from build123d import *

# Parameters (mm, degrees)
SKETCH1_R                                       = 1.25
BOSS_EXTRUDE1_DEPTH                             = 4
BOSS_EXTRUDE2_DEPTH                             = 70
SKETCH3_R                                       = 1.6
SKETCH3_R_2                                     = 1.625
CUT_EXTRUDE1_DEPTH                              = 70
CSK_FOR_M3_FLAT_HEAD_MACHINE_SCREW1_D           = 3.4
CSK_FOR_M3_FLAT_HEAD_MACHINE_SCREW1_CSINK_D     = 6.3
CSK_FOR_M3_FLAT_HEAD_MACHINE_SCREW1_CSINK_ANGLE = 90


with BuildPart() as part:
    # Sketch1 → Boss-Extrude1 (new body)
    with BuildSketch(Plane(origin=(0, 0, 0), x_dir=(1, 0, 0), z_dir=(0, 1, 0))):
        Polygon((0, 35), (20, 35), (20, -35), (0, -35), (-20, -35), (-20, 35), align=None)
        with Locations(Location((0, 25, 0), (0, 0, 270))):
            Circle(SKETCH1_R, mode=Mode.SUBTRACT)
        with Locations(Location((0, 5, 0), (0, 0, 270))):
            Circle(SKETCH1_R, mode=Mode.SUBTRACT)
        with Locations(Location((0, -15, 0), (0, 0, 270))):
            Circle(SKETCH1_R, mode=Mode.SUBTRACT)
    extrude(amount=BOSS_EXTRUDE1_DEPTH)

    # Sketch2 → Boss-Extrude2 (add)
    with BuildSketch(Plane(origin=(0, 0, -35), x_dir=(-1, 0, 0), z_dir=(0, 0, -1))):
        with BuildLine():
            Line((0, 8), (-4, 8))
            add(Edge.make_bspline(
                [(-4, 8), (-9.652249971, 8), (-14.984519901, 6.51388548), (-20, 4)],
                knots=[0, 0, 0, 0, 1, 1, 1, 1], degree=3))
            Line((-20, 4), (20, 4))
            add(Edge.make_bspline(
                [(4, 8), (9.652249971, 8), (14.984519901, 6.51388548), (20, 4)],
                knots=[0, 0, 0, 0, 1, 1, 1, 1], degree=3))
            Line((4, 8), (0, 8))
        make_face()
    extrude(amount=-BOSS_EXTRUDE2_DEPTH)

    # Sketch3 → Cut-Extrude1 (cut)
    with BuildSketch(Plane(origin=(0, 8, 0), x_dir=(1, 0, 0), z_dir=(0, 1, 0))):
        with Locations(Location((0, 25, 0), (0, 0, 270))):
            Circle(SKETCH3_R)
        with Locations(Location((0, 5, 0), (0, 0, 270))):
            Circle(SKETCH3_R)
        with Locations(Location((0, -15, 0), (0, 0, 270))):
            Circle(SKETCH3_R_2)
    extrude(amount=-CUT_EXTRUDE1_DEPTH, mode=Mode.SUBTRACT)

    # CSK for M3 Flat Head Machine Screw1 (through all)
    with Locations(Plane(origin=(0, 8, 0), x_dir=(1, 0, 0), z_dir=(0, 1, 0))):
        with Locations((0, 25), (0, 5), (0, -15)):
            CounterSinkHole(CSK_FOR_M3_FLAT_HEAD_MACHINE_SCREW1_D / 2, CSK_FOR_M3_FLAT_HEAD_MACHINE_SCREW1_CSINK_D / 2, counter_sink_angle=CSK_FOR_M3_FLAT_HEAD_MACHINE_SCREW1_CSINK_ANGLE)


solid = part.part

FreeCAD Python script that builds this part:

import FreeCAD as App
import Part
import Sketcher

V = App.Vector
Q = App.Units.Quantity

doc = App.newDocument("Part")
params = doc.addObject("Spreadsheet::Sheet", "Params")
for row, (alias, value) in enumerate([
    ("sketch1_diameter", "2.5 mm"),
    ("sketch1_width", "40 mm"),
    ("sketch1_height", "70 mm"),
    ("pad1_length", "4 mm"),
    ("pad2_length", "70 mm"),
    ("sketch3_diameter", "3.2 mm"),
    ("sketch3_diameter2", "3.25 mm"),
    ("pocket1_length", "70 mm"),
    ("sketch4_diameter", "3.4 mm"),
    ("hole_diameter", "3.4 mm"),
    ("hole_csink_diameter", "6.3 mm"),
], start=1):
    params.set(f"A{row}", alias)
    params.set(f"B{row}", "=" + value)
    params.setAlias(f"B{row}", alias)

body = doc.addObject("PartDesign::Body", "Body")

# Sketch on XZ plane
sketch1 = body.newObject("Sketcher::SketchObject", "Sketch")
sketch1.AttachmentSupport = (doc.getObject("XZ_Plane"), [""])
sketch1.MapMode = "FlatFace"
sketch1.addGeometry([
    Part.LineSegment(V(20, -35, 0), V(-20, -35, 0)),  # 0
    Part.LineSegment(V(-20, -35, 0), V(-20, 35, 0)),  # 1
    Part.LineSegment(V(-20, 35, 0), V(20, 35, 0)),  # 2
    Part.LineSegment(V(20, 35, 0), V(20, -35, 0)),  # 3
    Part.Circle(V(0, 15, 0), V(0, 0, 1), 1.2),  # 4
    Part.Circle(V(0, -5, 0), V(0, 0, 1), 1.2),  # 5
    Part.Circle(V(0, -25, 0), V(0, 0, 1), 1.2),  # 6
], False)
sketch1.addConstraint([
    Sketcher.Constraint("Coincident", 0, 2, 1, 1),
    Sketcher.Constraint("Coincident", 1, 2, 2, 1),
    Sketcher.Constraint("Coincident", 2, 2, 3, 1),
    Sketcher.Constraint("Coincident", 3, 2, 0, 1),
    Sketcher.Constraint("Horizontal", 0),
    Sketcher.Constraint("Vertical", 1),
    Sketcher.Constraint("Horizontal", 2),
    Sketcher.Constraint("Vertical", 3),
    Sketcher.Constraint("Equal", 4, 5),
    Sketcher.Constraint("Equal", 5, 6),
    Sketcher.Constraint("Symmetric", 0, 2, 2, 2, -1, 1),
    Sketcher.Constraint("PointOnObject", 4, 3, -2),
    Sketcher.Constraint("PointOnObject", 5, 3, -2),
    Sketcher.Constraint("PointOnObject", 6, 3, -2),
    Sketcher.Constraint("Diameter", 4, Q("2.5 mm")),
    Sketcher.Constraint("DistanceX", 0, 2, 0, 1, Q("40 mm")),
    Sketcher.Constraint("DistanceY", 1, 1, 1, 2, Q("70 mm")),
    Sketcher.Constraint("DistanceY", -1, 1, 4, 3, Q("15 mm")),
    Sketcher.Constraint("DistanceY", 5, 3, -1, 1, Q("5 mm")),
    Sketcher.Constraint("DistanceY", 6, 3, -1, 1, Q("25 mm")),
])
sketch1.setExpression("Constraints[14]", "Params.sketch1_diameter")
sketch1.setExpression("Constraints[15]", "Params.sketch1_width")
sketch1.setExpression("Constraints[16]", "Params.sketch1_height")
pad1 = body.newObject("PartDesign::Pad", "Pad")
pad1.Profile = sketch1
pad1.setExpression("Length", "Params.pad1_length")
pad1.Reversed = True

# Sketch on XY plane
sketch2 = body.newObject("Sketcher::SketchObject", "Sketch001")
sketch2.AttachmentSupport = (doc.getObject("XY_Plane"), [""])
sketch2.MapMode = "FlatFace"
sketch2.AttachmentOffset = App.Placement(V(0, 0, -35), App.Rotation())
sketch2.addGeometry([
    Part.BSplineCurve([V(4, 8, 0), V(9.65225, 8, 0), V(14.98452, 6.513885, 0), V(20, 4, 0)], [4, 4], [0, 1], False, 3, [1, 1, 1, 1], False),
    Part.LineSegment(V(20, 4, 0), V(-20, 4, 0)),
    Part.BSplineCurve([V(-4, 8, 0), V(-9.65225, 8, 0), V(-14.98452, 6.513885, 0), V(-20, 4, 0)], [4, 4], [0, 1], False, 3, [1, 1, 1, 1], False),
    Part.LineSegment(V(-4, 8, 0), V(4, 8, 0)),
], False)
sketch2.addConstraint([
    Sketcher.Constraint("Block", 0),
    Sketcher.Constraint("Block", 2),
    Sketcher.Constraint("Coincident", 0, 2, 1, 1),
    Sketcher.Constraint("Coincident", 1, 2, 2, 2),
    Sketcher.Constraint("Coincident", 2, 1, 3, 1),
    Sketcher.Constraint("Coincident", 3, 2, 0, 1),
])
pad2 = body.newObject("PartDesign::Pad", "Pad001")
pad2.Profile = sketch2
pad2.setExpression("Length", "Params.pad2_length")

# Sketch on XZ plane
sketch3 = body.newObject("Sketcher::SketchObject", "Sketch002")
sketch3.AttachmentSupport = (doc.getObject("XZ_Plane"), [""])
sketch3.MapMode = "FlatFace"
sketch3.AttachmentOffset = App.Placement(V(0, 0, -8), App.Rotation())
sketch3.addGeometry([
    Part.Circle(V(0, -25, 0), V(0, 0, 1), 1.6),
    Part.Circle(V(0, -5, 0), V(0, 0, 1), 1.6),
    Part.Circle(V(0, 15, 0), V(0, 0, 1), 1.6),
], False)
sketch3.addConstraint([
    Sketcher.Constraint("Equal", 0, 1),
    Sketcher.Constraint("PointOnObject", 0, 3, -2),
    Sketcher.Constraint("PointOnObject", 1, 3, -2),
    Sketcher.Constraint("PointOnObject", 2, 3, -2),
    Sketcher.Constraint("Diameter", 0, Q("3.2 mm")),
    Sketcher.Constraint("Diameter", 2, Q("3.25 mm")),
    Sketcher.Constraint("DistanceY", 0, 3, -1, 1, Q("25 mm")),
    Sketcher.Constraint("DistanceY", 1, 3, -1, 1, Q("5 mm")),
    Sketcher.Constraint("DistanceY", -1, 1, 2, 3, Q("15 mm")),
])
sketch3.setExpression("Constraints[4]", "Params.sketch3_diameter")
sketch3.setExpression("Constraints[5]", "Params.sketch3_diameter2")
pocket1 = body.newObject("PartDesign::Pocket", "Pocket")
pocket1.Profile = sketch3
pocket1.setExpression("Length", "Params.pocket1_length")
pocket1.Reversed = True

# Sketch on XZ plane
sketch4 = body.newObject("Sketcher::SketchObject", "Sketch003")
sketch4.AttachmentSupport = (doc.getObject("XZ_Plane"), [""])
sketch4.MapMode = "FlatFace"
sketch4.AttachmentOffset = App.Placement(V(0, 0, -8), App.Rotation())
sketch4.addGeometry([
    Part.Circle(V(0, -25, 0), V(0, 0, 1), 1.7),
    Part.Circle(V(0, -5, 0), V(0, 0, 1), 1.7),
    Part.Circle(V(0, 15, 0), V(0, 0, 1), 1.7),
], False)
sketch4.addConstraint([
    Sketcher.Constraint("Equal", 0, 1),
    Sketcher.Constraint("Equal", 1, 2),
    Sketcher.Constraint("PointOnObject", 0, 3, -2),
    Sketcher.Constraint("PointOnObject", 1, 3, -2),
    Sketcher.Constraint("PointOnObject", 2, 3, -2),
    Sketcher.Constraint("Diameter", 0, Q("3.4 mm")),
    Sketcher.Constraint("DistanceY", 0, 3, -1, 1, Q("25 mm")),
    Sketcher.Constraint("DistanceY", 1, 3, -1, 1, Q("5 mm")),
    Sketcher.Constraint("DistanceY", -1, 1, 2, 3, Q("15 mm")),
])
sketch4.setExpression("Constraints[5]", "Params.sketch4_diameter")
doc.recompute()
hole = body.newObject("PartDesign::Hole", "Hole")
hole.Profile = sketch4
hole.ThreadType = "None"
hole.setExpression("Diameter", "Params.hole_diameter")
hole.DepthType = "ThroughAll"
hole.HoleCutType = "Countersink"
hole.setExpression("HoleCutDiameter", "Params.hole_csink_diameter")
hole.HoleCutCountersinkAngle = 90
hole.Reversed = True

doc.recompute()
